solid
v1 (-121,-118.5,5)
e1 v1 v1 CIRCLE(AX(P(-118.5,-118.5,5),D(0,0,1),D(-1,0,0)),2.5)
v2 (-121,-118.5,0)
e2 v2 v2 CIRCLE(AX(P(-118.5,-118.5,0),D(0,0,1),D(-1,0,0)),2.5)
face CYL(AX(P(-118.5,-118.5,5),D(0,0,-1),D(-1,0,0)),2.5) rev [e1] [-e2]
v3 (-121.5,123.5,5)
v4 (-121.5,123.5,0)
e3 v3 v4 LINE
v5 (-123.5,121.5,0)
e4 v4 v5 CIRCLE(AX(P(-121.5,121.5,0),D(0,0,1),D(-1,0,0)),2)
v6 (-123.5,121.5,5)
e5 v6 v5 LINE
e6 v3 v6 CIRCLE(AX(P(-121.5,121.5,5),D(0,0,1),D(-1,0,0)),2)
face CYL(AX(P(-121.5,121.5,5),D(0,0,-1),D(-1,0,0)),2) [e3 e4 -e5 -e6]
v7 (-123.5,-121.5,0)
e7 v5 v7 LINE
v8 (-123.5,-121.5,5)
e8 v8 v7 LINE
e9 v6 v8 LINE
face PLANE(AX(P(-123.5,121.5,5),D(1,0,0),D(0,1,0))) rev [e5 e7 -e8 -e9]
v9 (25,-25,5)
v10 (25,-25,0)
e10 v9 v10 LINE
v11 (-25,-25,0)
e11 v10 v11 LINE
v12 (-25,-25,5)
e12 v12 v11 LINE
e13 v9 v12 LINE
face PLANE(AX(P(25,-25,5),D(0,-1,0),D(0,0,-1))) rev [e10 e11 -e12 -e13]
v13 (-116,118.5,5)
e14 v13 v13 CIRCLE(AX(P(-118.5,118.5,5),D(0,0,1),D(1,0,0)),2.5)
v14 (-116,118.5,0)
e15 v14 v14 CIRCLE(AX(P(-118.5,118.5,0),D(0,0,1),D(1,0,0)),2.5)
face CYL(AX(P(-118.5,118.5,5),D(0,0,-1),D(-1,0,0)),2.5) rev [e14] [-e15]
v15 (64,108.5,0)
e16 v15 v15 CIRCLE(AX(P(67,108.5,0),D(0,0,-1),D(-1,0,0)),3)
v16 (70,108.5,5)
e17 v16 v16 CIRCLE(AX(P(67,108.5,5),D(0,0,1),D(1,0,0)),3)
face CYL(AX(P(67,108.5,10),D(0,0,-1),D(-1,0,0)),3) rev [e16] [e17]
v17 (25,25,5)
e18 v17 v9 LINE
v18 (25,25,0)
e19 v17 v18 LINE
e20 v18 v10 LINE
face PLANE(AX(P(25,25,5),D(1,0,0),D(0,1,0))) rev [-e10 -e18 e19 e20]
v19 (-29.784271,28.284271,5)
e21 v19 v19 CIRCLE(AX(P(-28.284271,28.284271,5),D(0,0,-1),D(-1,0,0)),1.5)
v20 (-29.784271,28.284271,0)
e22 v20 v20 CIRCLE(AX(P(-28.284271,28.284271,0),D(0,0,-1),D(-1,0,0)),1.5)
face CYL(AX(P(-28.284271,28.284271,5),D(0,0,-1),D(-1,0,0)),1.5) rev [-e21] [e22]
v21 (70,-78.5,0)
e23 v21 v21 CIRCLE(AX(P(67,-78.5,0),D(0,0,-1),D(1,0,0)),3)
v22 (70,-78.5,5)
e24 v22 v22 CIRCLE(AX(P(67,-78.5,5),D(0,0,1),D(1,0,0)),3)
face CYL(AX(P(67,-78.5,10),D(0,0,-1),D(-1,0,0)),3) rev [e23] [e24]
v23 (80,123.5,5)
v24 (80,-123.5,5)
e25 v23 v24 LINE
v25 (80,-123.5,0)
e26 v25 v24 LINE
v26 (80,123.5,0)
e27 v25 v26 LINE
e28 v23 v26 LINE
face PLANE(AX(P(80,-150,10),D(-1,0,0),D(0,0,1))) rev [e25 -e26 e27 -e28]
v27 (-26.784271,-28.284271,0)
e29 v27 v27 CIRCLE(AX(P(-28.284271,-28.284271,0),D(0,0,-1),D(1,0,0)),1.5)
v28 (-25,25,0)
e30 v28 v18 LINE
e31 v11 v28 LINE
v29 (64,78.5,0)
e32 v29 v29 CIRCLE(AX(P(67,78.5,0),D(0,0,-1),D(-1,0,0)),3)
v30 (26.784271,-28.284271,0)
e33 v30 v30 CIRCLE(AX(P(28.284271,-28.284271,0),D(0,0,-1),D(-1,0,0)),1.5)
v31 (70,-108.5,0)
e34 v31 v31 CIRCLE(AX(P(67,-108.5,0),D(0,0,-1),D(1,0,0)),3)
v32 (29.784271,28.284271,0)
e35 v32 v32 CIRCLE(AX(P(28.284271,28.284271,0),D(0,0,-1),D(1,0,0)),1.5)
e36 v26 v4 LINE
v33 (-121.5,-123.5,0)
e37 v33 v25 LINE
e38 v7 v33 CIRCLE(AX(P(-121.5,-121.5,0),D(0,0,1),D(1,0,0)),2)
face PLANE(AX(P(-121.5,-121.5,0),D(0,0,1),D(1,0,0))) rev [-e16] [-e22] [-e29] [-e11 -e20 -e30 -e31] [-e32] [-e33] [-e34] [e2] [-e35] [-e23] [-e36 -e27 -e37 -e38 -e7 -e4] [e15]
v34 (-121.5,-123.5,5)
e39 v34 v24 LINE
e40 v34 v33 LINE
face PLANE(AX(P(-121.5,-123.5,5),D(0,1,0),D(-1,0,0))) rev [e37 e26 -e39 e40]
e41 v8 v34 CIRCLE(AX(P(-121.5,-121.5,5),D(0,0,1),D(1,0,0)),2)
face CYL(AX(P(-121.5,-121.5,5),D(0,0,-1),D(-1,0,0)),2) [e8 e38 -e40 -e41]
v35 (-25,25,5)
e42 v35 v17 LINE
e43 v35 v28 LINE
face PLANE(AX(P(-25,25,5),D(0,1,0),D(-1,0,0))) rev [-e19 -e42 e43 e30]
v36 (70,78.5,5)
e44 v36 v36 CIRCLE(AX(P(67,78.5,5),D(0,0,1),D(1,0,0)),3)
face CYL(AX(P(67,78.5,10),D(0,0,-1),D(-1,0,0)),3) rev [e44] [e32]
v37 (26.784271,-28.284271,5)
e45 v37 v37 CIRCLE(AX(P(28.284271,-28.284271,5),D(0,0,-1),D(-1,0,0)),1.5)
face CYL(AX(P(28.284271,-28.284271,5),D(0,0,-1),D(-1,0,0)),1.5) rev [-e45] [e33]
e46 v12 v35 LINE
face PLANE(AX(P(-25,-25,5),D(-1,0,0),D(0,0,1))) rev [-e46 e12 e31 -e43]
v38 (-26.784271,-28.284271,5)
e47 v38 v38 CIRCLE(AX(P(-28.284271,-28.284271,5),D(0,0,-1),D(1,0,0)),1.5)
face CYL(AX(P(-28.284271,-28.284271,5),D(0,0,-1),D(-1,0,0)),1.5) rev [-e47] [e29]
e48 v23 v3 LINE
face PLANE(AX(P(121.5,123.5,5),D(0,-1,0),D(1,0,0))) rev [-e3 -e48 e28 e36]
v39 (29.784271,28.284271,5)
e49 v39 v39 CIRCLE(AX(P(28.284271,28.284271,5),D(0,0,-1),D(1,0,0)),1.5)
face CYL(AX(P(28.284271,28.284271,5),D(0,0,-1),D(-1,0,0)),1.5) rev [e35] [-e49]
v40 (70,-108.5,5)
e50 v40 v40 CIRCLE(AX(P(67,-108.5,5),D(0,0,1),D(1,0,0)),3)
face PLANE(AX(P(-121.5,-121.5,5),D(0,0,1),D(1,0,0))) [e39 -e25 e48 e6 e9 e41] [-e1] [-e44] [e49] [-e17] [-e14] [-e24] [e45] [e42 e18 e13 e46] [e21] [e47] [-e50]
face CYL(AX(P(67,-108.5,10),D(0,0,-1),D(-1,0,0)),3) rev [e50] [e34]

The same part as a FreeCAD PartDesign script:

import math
import FreeCAD as App
import Part
import Sketcher

doc = App.newDocument("Part")
body = doc.addObject("PartDesign::Body", "Body")

# Sketch on XY plane
sketch1 = body.newObject("Sketcher::SketchObject", "Sketch")
sketch1.AttachmentSupport = (doc.getObject("XY_Plane"), [""])
sketch1.MapMode = "FlatFace"
sketch1.addGeometry(Part.LineSegment(App.Vector(-123.5, 121.5, 0), App.Vector(-123.5, -121.5, 0)), False)
sketch1.addGeometry(Part.ArcOfCircle(Part.Circle(App.Vector(-121.5, -121.5, 0), App.Vector(0, 0, 1), 2), math.radians(-180), math.radians(-90)), False)
sketch1.addGeometry(Part.LineSegment(App.Vector(-121.5, -123.5, 0), App.Vector(121.5, -123.5, 0)), False)
sketch1.addGeometry(Part.ArcOfCircle(Part.Circle(App.Vector(121.5, -121.5, 0), App.Vector(0, 0, 1), 2), math.radians(-90), math.radians(0)), False)
sketch1.addGeometry(Part.LineSegment(App.Vector(123.5, -121.5, 0), App.Vector(123.5, 121.5, 0)), False)
sketch1.addGeometry(Part.ArcOfCircle(Part.Circle(App.Vector(121.5, 121.5, 0), App.Vector(0, 0, 1), 2), math.radians(0), math.radians(90)), False)
sketch1.addGeometry(Part.LineSegment(App.Vector(121.5, 123.5, 0), App.Vector(-121.5, 123.5, 0)), False)
sketch1.addGeometry(Part.ArcOfCircle(Part.Circle(App.Vector(-121.5, 121.5, 0), App.Vector(0, 0, 1), 2), math.radians(90), math.radians(180)), False)
sketch1.addGeometry(Part.Circle(App.Vector(-118.5, -118.5, 0), App.Vector(0, 0, 1), 2.5), False)
sketch1.addGeometry(Part.Circle(App.Vector(118.5, -118.5, 0), App.Vector(0, 0, 1), 2.5), False)
sketch1.addGeometry(Part.Circle(App.Vector(-118.5, 118.5, 0), App.Vector(0, 0, 1), 2.5), False)
sketch1.addGeometry(Part.Circle(App.Vector(118.5, 118.5, 0), App.Vector(0, 0, 1), 2.5), False)
sketch1.addConstraint(Sketcher.Constraint("Tangent", 0, 2, 1, 1))
sketch1.addConstraint(Sketcher.Constraint("Tangent", 1, 2, 2, 1))
sketch1.addConstraint(Sketcher.Constraint("Tangent", 2, 2, 3, 1))
sketch1.addConstraint(Sketcher.Constraint("Tangent", 3, 2, 4, 1))
sketch1.addConstraint(Sketcher.Constraint("Tangent", 4, 2, 5, 1))
sketch1.addConstraint(Sketcher.Constraint("Tangent", 5, 2, 6, 1))
sketch1.addConstraint(Sketcher.Constraint("Tangent", 6, 2, 7, 1))
sketch1.addConstraint(Sketcher.Constraint("Tangent", 7, 2, 0, 1))
sketch1.addConstraint(Sketcher.Constraint("Vertical", 0))
sketch1.addConstraint(Sketcher.Constraint("Horizontal", 2))
sketch1.addConstraint(Sketcher.Constraint("Vertical", 4))
sketch1.addConstraint(Sketcher.Constraint("Horizontal", 6))
sketch1.addConstraint(Sketcher.Constraint("Equal", 1, 3))
sketch1.addConstraint(Sketcher.Constraint("Equal", 3, 5))
sketch1.addConstraint(Sketcher.Constraint("Equal", 5, 7))
sketch1.addConstraint(Sketcher.Constraint("Equal", 8, 9))
sketch1.addConstraint(Sketcher.Constraint("Equal", 9, 10))
sketch1.addConstraint(Sketcher.Constraint("Equal", 10, 11))
sketch1.addConstraint(Sketcher.Constraint("Symmetric", 1, 3, 5, 3, -1, 1))
sketch1.addConstraint(Sketcher.Constraint("Symmetric", 9, 3, 10, 3, -1, 1))
sketch1.addConstraint(Sketcher.Constraint("Symmetric", 8, 3, 11, 3, -1, 1))
sketch1.addConstraint(Sketcher.Constraint("Symmetric", 8, 3, 9, 3, -2))
sketch1.addConstraint(Sketcher.Constraint("Equal", 6, 0))
sketch1.addConstraint(Sketcher.Constraint("Diameter", 8, 5.0))
sketch1.addConstraint(Sketcher.Constraint("Radius", 1, 2.0))
sketch1.addConstraint(Sketcher.Constraint("DistanceX", 2, 1, 2, 2, 243.0))
sketch1.addConstraint(Sketcher.Constraint("DistanceX", 1, 3, 8, 3, 3.0))
sketch1.addConstraint(Sketcher.Constraint("DistanceY", 1, 3, 8, 3, 3.0))
pad1 = body.newObject("PartDesign::Pad", "Pad")
pad1.Profile = sketch1
pad1.Length = 5

# Sketch on XY plane
sketch2 = body.newObject("Sketcher::SketchObject", "Sketch001")
sketch2.AttachmentSupport = (doc.getObject("XY_Plane"), [""])
sketch2.MapMode = "FlatFace"
sketch2.addGeometry(Part.Circle(App.Vector(-28.284271, 28.284271, 0), App.Vector(0, 0, 1), 1.5), False)
sketch2.addGeometry(Part.Circle(App.Vector(-28.284271, -28.284271, 0), App.Vector(0, 0, 1), 1.5), False)
sketch2.addGeometry(Part.Circle(App.Vector(28.284271, -28.284271, 0), App.Vector(0, 0, 1), 1.5), False)
sketch2.addGeometry(Part.Circle(App.Vector(28.284271, 28.284271, 0), App.Vector(0, 0, 1), 1.5), False)
sketch2.addGeometry(Part.LineSegment(App.Vector(25, 25, 0), App.Vector(25, -25, 0)), False)
sketch2.addGeometry(Part.LineSegment(App.Vector(25, -25, 0), App.Vector(-25, -25, 0)), False)
sketch2.addGeometry(Part.LineSegment(App.Vector(-25, -25, 0), App.Vector(-25, 25, 0)), False)
sketch2.addGeometry(Part.LineSegment(App.Vector(-25, 25, 0), App.Vector(25, 25, 0)), False)
sketch2.addConstraint(Sketcher.Constraint("Coincident", 4, 2, 5, 1))
sketch2.addConstraint(Sketcher.Constraint("Coincident", 5, 2, 6, 1))
sketch2.addConstraint(Sketcher.Constraint("Coincident", 6, 2, 7, 1))
sketch2.addConstraint(Sketcher.Constraint("Coincident", 7, 2, 4, 1))
sketch2.addConstraint(Sketcher.Constraint("Vertical", 4))
sketch2.addConstraint(Sketcher.Constraint("Horizontal", 5))
sketch2.addConstraint(Sketcher.Constraint("Vertical", 6))
sketch2.addConstraint(Sketcher.Constraint("Horizontal", 7))
sketch2.addConstraint(Sketcher.Constraint("Equal", 0, 1))
sketch2.addConstraint(Sketcher.Constraint("Equal", 1, 2))
sketch2.addConstraint(Sketcher.Constraint("Equal", 2, 3))
sketch2.addConstraint(Sketcher.Constraint("Symmetric", 0, 3, 2, 3, -1, 1))
sketch2.addConstraint(Sketcher.Constraint("Symmetric", 1, 3, 3, 3, -1, 1))
sketch2.addConstraint(Sketcher.Constraint("Symmetric", 4, 2, 6, 2, -1, 1))
sketch2.addConstraint(Sketcher.Constraint("Symmetric", 1, 3, 2, 3, -2))
sketch2.addConstraint(Sketcher.Constraint("Equal", 7, 4))
sketch2.addConstraint(Sketcher.Constraint("Diameter", 0, 3.0))
sketch2.addConstraint(Sketcher.Constraint("DistanceX", 5, 2, 5, 1, 50.0))
sketch2.addConstraint(Sketcher.Constraint("DistanceX", 0, 3, -1, 1, 28.284271))
sketch2.addConstraint(Sketcher.Constraint("DistanceY", -1, 1, 0, 3, 28.284271))
pocket1 = body.newObject("PartDesign::Pocket", "Pocket")
pocket1.Profile = sketch2
pocket1.Length = 5
pocket1.Reversed = True

# Sketch on XY plane
sketch3 = body.newObject("Sketcher::SketchObject", "Sketch002")
sketch3.AttachmentSupport = (doc.getObject("XY_Plane"), [""])
sketch3.MapMode = "FlatFace"
sketch3.addGeometry(Part.LineSegment(App.Vector(160, 150, 0), App.Vector(160, -150, 0)), False)
sketch3.addGeometry(Part.LineSegment(App.Vector(160, -150, 0), App.Vector(80, -150, 0)), False)
sketch3.addGeometry(Part.LineSegment(App.Vector(80, -150, 0), App.Vector(80, 150, 0)), False)
sketch3.addGeometry(Part.LineSegment(App.Vector(80, 150, 0), App.Vector(160, 150, 0)), False)
sketch3.addConstraint(Sketcher.Constraint("Coincident", 0, 2, 1, 1))
sketch3.addConstraint(Sketcher.Constraint("Coincident", 1, 2, 2, 1))
sketch3.addConstraint(Sketcher.Constraint("Coincident", 2, 2, 3, 1))
sketch3.addConstraint(Sketcher.Constraint("Coincident", 3, 2, 0, 1))
sketch3.addConstraint(Sketcher.Constraint("Vertical", 0))
sketch3.addConstraint(Sketcher.Constraint("Horizontal", 1))
sketch3.addConstraint(Sketcher.Constraint("Vertical", 2))
sketch3.addConstraint(Sketcher.Constraint("Horizontal", 3))
sketch3.addConstraint(Sketcher.Constraint("DistanceX", 1, 2, 1, 1, 80.0))
sketch3.addConstraint(Sketcher.Constraint("DistanceY", 0, 2, 0, 1, 300.0))
sketch3.addConstraint(Sketcher.Constraint("DistanceX", -1, 1, 0, 2, 160.0))
sketch3.addConstraint(Sketcher.Constraint("DistanceY", 0, 2, -1, 1, 150.0))
pocket2 = body.newObject("PartDesign::Pocket", "Pocket001")
pocket2.Profile = sketch3
pocket2.Length = 10
pocket2.Reversed = True

# Sketch on XY plane
sketch4 = body.newObject("Sketcher::SketchObject", "Sketch003")
sketch4.AttachmentSupport = (doc.getObject("XY_Plane"), [""])
sketch4.MapMode = "FlatFace"
sketch4.addGeometry(Part.Circle(App.Vector(67, 108.5, 0), App.Vector(0, 0, 1), 3), False)
sketch4.addGeometry(Part.Circle(App.Vector(67, 78.5, 0), App.Vector(0, 0, 1), 3), False)
sketch4.addGeometry(Part.Circle(App.Vector(67, -108.5, 0), App.Vector(0, 0, 1), 3), False)
sketch4.addGeometry(Part.Circle(App.Vector(67, -78.5, 0), App.Vector(0, 0, 1), 3), False)
sketch4.addConstraint(Sketcher.Constraint("Equal", 0, 1))
sketch4.addConstraint(Sketcher.Constraint("Equal", 1, 2))
sketch4.addConstraint(Sketcher.Constraint("Equal", 2, 3))
sketch4.addConstraint(Sketcher.Constraint("Symmetric", 0, 3, 2, 3, -1))
sketch4.addConstraint(Sketcher.Constraint("Symmetric", 1, 3, 3, 3, -1))
sketch4.addConstraint(Sketcher.Constraint("Vertical", 0, 3, 1, 3))
sketch4.addConstraint(Sketcher.Constraint("Diameter", 0, 6.0))
sketch4.addConstraint(Sketcher.Constraint("DistanceX", -1, 1, 0, 3, 67.0))
sketch4.addConstraint(Sketcher.Constraint("DistanceY", 1, 3, 0, 3, 30.0))
sketch4.addConstraint(Sketcher.Constraint("DistanceY", 2, 3, 1, 3, 187.0))
pocket3 = body.newObject("PartDesign::Pocket", "Pocket002")
pocket3.Profile = sketch4
pocket3.Length = 10
pocket3.Reversed = True

# Sketch on XY plane
sketch5 = body.newObject("Sketcher::SketchObject", "Sketch004")
sketch5.AttachmentSupport = (doc.getObject("XY_Plane"), [""])
sketch5.MapMode = "FlatFace"
sketch5.addGeometry(Part.Circle(App.Vector(93, 78.5, 0), App.Vector(0, 0, 1), 3), False)
sketch5.addGeometry(Part.Circle(App.Vector(93, 108.5, 0), App.Vector(0, 0, 1), 3), False)
sketch5.addGeometry(Part.Circle(App.Vector(93, -78.5, 0), App.Vector(0, 0, 1), 3), False)
sketch5.addGeometry(Part.Circle(App.Vector(93, -108.5, 0), App.Vector(0, 0, 1), 3), False)
sketch5.addConstraint(Sketcher.Constraint("Equal", 0, 1))
sketch5.addConstraint(Sketcher.Constraint("Equal", 1, 2))
sketch5.addConstraint(Sketcher.Constraint("Equal", 2, 3))
sketch5.addConstraint(Sketcher.Constraint("Symmetric", 0, 3, 2, 3, -1))
sketch5.addConstraint(Sketcher.Constraint("Symmetric", 1, 3, 3, 3, -1))
sketch5.addConstraint(Sketcher.Constraint("Vertical", 0, 3, 1, 3))
sketch5.addConstraint(Sketcher.Constraint("Diameter", 0, 6.0))
sketch5.addConstraint(Sketcher.Constraint("DistanceX", -1, 1, 0, 3, 93.0))
sketch5.addConstraint(Sketcher.Constraint("DistanceY", 0, 3, 1, 3, 30.0))
sketch5.addConstraint(Sketcher.Constraint("DistanceY", 2, 3, 0, 3, 157.0))
pocket4 = body.newObject("PartDesign::Pocket", "Pocket003")
pocket4.Profile = sketch5
pocket4.Length = 10
pocket4.Reversed = True

doc.recompute()
